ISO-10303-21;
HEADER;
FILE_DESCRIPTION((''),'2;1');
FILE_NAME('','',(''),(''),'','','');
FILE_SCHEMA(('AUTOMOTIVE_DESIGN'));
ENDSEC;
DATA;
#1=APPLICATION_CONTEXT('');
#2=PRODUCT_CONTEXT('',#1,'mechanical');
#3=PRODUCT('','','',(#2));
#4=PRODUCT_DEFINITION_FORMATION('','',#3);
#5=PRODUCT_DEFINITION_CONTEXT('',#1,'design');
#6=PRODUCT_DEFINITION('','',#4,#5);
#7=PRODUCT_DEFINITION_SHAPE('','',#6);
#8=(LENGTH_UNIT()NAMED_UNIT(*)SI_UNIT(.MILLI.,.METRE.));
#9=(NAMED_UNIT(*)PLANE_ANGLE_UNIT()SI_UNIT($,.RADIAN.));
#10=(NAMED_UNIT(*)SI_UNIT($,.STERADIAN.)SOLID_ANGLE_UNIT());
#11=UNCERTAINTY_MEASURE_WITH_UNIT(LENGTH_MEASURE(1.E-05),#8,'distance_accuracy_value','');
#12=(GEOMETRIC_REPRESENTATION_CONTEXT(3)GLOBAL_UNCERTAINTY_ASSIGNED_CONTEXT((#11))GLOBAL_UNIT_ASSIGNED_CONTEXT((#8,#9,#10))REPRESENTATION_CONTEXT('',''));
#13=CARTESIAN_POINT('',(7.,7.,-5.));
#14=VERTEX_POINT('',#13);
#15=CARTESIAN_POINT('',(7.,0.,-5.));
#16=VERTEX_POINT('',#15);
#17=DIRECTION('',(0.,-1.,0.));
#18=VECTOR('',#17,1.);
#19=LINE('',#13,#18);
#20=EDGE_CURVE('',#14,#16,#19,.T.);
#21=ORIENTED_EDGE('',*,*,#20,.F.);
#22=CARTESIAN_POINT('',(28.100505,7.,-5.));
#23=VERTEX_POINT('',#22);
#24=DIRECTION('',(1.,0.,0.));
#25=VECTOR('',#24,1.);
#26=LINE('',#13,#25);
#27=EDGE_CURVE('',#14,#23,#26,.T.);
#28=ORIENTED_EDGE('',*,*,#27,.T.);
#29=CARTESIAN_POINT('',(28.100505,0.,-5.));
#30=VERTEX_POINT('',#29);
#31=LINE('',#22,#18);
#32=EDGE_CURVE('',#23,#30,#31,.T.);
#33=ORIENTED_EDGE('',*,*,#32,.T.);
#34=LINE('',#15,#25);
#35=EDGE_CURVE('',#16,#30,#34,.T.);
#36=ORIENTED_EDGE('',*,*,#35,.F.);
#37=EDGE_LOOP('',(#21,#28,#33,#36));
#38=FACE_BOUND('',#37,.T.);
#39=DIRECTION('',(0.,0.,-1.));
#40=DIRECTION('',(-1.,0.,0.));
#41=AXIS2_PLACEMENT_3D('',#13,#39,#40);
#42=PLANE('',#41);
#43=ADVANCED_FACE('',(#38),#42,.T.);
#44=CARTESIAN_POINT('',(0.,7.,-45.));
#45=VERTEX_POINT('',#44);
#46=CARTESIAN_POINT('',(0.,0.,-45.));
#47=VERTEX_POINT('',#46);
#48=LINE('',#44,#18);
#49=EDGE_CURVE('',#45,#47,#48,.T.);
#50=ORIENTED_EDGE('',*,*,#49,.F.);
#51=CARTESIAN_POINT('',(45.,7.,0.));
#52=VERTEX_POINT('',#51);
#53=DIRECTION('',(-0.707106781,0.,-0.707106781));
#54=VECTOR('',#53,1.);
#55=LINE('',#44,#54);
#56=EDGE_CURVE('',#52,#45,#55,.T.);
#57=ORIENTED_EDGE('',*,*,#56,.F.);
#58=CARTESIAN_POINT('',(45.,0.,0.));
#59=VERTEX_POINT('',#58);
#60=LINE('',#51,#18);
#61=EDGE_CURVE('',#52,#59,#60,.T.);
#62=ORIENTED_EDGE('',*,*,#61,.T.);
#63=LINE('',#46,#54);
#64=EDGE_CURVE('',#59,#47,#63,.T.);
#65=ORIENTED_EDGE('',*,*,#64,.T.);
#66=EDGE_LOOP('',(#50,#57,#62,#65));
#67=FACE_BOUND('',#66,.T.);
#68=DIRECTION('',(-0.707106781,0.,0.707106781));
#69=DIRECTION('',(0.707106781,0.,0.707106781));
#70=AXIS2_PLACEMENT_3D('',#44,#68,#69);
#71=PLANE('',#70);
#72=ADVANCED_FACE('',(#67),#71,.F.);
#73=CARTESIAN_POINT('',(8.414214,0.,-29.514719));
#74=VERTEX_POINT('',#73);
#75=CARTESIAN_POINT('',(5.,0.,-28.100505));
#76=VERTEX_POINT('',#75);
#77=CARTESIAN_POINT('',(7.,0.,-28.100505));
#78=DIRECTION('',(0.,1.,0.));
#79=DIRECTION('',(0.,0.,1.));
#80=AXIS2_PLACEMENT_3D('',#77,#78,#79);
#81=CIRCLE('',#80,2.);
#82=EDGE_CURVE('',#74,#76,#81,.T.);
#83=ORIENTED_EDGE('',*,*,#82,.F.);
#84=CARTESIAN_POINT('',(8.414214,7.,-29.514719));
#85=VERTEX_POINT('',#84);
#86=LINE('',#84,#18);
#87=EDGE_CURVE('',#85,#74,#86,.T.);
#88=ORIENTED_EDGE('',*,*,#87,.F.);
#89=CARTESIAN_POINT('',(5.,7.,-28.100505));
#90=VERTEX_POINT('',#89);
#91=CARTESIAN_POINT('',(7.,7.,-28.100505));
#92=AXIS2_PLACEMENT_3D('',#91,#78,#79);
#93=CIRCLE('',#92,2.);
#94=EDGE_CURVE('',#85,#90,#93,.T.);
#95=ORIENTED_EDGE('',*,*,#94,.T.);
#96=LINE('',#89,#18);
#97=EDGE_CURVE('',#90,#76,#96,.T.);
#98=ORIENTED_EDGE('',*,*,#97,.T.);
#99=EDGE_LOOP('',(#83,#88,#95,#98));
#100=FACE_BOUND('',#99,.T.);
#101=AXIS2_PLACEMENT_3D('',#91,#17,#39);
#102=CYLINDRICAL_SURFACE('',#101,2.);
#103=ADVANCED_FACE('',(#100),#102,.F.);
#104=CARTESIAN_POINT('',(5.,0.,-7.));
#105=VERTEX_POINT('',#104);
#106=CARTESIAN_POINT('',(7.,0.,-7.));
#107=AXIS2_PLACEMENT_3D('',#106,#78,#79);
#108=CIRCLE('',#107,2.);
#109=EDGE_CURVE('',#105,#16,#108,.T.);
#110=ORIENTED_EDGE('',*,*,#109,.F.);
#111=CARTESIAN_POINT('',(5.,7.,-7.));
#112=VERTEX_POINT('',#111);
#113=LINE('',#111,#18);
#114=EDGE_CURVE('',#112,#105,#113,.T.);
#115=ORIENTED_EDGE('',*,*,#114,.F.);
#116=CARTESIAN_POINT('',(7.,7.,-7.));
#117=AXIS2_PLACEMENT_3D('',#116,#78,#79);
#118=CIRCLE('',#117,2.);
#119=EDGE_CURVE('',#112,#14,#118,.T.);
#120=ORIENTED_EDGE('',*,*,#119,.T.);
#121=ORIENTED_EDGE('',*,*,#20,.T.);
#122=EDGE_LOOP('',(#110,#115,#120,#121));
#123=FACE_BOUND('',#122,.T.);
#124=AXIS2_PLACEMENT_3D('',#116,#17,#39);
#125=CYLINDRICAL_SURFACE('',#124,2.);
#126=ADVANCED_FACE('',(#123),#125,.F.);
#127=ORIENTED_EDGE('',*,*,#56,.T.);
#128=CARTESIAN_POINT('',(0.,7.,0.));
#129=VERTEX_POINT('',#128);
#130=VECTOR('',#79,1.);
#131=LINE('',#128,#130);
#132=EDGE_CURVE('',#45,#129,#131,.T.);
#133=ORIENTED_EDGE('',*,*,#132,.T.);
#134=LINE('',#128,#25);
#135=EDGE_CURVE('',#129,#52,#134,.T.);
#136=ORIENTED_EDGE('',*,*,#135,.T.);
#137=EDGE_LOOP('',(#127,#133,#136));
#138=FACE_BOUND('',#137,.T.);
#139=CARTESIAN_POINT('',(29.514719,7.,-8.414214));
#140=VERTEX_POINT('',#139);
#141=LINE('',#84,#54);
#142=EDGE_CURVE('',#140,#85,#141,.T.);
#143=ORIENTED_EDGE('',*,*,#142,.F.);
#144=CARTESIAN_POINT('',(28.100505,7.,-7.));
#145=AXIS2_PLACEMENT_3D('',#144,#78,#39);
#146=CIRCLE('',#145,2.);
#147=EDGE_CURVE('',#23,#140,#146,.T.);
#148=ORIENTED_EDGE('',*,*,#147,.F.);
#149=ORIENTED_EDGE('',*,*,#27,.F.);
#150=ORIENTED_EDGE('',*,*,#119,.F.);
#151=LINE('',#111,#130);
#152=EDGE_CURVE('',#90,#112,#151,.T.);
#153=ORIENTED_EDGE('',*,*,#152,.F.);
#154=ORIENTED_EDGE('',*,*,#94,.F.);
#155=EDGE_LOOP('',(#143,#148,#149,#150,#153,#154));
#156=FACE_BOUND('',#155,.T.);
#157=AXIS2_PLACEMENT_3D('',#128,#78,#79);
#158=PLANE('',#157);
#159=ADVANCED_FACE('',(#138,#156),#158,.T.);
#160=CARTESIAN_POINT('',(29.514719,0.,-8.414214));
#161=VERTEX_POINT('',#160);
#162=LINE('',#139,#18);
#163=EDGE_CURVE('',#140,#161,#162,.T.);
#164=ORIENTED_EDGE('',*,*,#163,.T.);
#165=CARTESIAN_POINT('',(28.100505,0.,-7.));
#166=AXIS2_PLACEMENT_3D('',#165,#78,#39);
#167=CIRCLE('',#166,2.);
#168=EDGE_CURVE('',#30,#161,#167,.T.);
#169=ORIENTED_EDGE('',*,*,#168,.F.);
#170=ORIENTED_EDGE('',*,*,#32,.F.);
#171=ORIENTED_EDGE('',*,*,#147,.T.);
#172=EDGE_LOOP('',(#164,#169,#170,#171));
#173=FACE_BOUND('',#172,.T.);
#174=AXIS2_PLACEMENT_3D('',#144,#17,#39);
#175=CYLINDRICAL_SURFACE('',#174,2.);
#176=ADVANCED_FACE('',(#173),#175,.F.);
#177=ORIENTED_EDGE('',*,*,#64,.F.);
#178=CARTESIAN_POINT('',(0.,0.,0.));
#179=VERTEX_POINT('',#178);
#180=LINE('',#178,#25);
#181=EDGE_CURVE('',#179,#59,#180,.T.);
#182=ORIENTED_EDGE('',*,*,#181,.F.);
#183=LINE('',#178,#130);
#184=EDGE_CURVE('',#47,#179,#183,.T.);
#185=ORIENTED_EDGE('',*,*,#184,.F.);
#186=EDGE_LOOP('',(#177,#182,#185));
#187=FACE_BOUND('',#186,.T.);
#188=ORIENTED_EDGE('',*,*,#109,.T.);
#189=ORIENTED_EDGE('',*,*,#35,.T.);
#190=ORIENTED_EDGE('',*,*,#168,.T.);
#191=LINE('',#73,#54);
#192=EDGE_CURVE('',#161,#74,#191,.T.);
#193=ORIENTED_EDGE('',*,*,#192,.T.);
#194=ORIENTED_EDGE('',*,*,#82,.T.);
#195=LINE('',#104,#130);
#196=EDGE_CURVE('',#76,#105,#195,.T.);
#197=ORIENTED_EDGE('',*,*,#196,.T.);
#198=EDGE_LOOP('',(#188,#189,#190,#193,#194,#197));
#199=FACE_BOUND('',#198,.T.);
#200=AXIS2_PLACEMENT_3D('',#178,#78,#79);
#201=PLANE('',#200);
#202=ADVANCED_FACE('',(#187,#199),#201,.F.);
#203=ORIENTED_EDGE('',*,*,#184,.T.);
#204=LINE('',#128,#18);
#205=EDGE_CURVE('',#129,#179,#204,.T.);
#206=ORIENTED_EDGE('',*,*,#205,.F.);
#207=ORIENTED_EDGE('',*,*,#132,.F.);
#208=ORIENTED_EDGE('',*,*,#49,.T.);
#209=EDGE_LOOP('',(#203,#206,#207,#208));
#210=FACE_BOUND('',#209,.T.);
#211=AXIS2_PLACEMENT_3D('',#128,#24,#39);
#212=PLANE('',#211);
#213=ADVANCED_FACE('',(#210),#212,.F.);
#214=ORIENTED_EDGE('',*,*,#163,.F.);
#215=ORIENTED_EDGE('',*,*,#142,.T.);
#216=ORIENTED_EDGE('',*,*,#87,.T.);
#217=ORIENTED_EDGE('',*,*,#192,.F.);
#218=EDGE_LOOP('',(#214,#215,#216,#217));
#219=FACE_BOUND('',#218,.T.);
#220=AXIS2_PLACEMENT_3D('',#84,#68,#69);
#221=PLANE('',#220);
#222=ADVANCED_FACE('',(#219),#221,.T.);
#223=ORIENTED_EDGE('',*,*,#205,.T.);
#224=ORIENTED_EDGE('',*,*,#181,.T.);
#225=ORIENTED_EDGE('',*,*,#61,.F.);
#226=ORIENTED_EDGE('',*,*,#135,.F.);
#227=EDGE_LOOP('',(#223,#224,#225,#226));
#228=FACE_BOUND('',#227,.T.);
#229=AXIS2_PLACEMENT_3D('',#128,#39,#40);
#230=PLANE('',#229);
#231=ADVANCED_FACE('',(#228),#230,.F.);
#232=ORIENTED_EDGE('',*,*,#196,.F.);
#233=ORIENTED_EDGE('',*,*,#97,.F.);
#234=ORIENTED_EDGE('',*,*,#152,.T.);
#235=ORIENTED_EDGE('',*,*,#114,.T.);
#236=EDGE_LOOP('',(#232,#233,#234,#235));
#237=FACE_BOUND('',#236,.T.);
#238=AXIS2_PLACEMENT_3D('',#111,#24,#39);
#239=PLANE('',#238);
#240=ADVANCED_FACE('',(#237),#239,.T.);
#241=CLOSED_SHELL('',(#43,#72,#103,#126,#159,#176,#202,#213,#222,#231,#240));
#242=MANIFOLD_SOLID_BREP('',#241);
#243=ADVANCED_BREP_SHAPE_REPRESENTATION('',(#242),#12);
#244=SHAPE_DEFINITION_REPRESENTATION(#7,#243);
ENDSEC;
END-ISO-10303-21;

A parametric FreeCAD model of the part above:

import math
import FreeCAD as App
import Part
import Sketcher
from FreeCAD import Vector
Q = App.Units.Quantity

doc = App.newDocument("Part")
body = doc.addObject("PartDesign::Body", "Body")

# Sketch on XZ plane
sketch1 = doc.addObject("Sketcher::SketchObject", "Sketch")
body.addObject(sketch1)
sketch1.AttachmentSupport = (doc.XZ_Plane, [""])
sketch1.MapMode = "FlatFace"
sketch1.addGeometry([
    Part.LineSegment(Vector(0, -45, 0), Vector(0, 0, 0)),  # 0
    Part.LineSegment(Vector(0, 0, 0), Vector(45, 0, 0)),  # 1
    Part.LineSegment(Vector(45, 0, 0), Vector(0, -45, 0)),  # 2
    Part.LineSegment(Vector(5, -7, 0), Vector(5, -28.1, 0)),  # 3
    Part.ArcOfCircle(Part.Circle(Vector(7, -28.1, 0), Vector(0, 0, 1), 2), math.radians(180), math.radians(315)),  # 4
    Part.LineSegment(Vector(8.4, -29.5, 0), Vector(29.5, -8.4, 0)),  # 5
    Part.ArcOfCircle(Part.Circle(Vector(28.1, -7, 0), Vector(0, 0, 1), 2), math.radians(-45), math.radians(90)),  # 6
    Part.LineSegment(Vector(28.1, -5, 0), Vector(7, -5, 0)),  # 7
    Part.ArcOfCircle(Part.Circle(Vector(7, -7, 0), Vector(0, 0, 1), 2), math.radians(90), math.radians(180)),  # 8
], False)
sketch1.addConstraint([
    Sketcher.Constraint("Coincident", 0, 2, 1, 1),
    Sketcher.Constraint("Coincident", 1, 2, 2, 1),
    Sketcher.Constraint("Coincident", 2, 2, 0, 1),
    Sketcher.Constraint("Tangent", 3, 2, 4, 1),
    Sketcher.Constraint("Tangent", 4, 2, 5, 1),
    Sketcher.Constraint("Tangent", 5, 2, 6, 1),
    Sketcher.Constraint("Tangent", 6, 2, 7, 1),
    Sketcher.Constraint("Tangent", 7, 2, 8, 1),
    Sketcher.Constraint("Tangent", 8, 2, 3, 1),
    Sketcher.Constraint("Vertical", 0),
    Sketcher.Constraint("Horizontal", 1),
    Sketcher.Constraint("Vertical", 3),
    Sketcher.Constraint("Horizontal", 7),
    Sketcher.Constraint("Coincident", 0, 2, -1, 1),
    Sketcher.Constraint("Equal", 4, 6),
    Sketcher.Constraint("Equal", 6, 8),
    Sketcher.Constraint("Parallel", 2, 5),
    Sketcher.Constraint("Equal", 1, 0),
    Sketcher.Constraint("Radius", 4, Q("2 mm")),
    Sketcher.Constraint("DistanceX", 1, 1, 1, 2, Q("45 mm")),
    Sketcher.Constraint("DistanceX", -1, 1, 4, 3, Q("7 mm")),
    Sketcher.Constraint("DistanceY", 6, 3, -1, 1, Q("7 mm")),
    Sketcher.Constraint("Distance", 5, Q("29.84062 mm")),
])
pad1 = doc.addObject("PartDesign::Pad", "Pad")
body.addObject(pad1)
pad1.Profile = sketch1
pad1.Length = 7
pad1.Reversed = True

doc.recompute()
